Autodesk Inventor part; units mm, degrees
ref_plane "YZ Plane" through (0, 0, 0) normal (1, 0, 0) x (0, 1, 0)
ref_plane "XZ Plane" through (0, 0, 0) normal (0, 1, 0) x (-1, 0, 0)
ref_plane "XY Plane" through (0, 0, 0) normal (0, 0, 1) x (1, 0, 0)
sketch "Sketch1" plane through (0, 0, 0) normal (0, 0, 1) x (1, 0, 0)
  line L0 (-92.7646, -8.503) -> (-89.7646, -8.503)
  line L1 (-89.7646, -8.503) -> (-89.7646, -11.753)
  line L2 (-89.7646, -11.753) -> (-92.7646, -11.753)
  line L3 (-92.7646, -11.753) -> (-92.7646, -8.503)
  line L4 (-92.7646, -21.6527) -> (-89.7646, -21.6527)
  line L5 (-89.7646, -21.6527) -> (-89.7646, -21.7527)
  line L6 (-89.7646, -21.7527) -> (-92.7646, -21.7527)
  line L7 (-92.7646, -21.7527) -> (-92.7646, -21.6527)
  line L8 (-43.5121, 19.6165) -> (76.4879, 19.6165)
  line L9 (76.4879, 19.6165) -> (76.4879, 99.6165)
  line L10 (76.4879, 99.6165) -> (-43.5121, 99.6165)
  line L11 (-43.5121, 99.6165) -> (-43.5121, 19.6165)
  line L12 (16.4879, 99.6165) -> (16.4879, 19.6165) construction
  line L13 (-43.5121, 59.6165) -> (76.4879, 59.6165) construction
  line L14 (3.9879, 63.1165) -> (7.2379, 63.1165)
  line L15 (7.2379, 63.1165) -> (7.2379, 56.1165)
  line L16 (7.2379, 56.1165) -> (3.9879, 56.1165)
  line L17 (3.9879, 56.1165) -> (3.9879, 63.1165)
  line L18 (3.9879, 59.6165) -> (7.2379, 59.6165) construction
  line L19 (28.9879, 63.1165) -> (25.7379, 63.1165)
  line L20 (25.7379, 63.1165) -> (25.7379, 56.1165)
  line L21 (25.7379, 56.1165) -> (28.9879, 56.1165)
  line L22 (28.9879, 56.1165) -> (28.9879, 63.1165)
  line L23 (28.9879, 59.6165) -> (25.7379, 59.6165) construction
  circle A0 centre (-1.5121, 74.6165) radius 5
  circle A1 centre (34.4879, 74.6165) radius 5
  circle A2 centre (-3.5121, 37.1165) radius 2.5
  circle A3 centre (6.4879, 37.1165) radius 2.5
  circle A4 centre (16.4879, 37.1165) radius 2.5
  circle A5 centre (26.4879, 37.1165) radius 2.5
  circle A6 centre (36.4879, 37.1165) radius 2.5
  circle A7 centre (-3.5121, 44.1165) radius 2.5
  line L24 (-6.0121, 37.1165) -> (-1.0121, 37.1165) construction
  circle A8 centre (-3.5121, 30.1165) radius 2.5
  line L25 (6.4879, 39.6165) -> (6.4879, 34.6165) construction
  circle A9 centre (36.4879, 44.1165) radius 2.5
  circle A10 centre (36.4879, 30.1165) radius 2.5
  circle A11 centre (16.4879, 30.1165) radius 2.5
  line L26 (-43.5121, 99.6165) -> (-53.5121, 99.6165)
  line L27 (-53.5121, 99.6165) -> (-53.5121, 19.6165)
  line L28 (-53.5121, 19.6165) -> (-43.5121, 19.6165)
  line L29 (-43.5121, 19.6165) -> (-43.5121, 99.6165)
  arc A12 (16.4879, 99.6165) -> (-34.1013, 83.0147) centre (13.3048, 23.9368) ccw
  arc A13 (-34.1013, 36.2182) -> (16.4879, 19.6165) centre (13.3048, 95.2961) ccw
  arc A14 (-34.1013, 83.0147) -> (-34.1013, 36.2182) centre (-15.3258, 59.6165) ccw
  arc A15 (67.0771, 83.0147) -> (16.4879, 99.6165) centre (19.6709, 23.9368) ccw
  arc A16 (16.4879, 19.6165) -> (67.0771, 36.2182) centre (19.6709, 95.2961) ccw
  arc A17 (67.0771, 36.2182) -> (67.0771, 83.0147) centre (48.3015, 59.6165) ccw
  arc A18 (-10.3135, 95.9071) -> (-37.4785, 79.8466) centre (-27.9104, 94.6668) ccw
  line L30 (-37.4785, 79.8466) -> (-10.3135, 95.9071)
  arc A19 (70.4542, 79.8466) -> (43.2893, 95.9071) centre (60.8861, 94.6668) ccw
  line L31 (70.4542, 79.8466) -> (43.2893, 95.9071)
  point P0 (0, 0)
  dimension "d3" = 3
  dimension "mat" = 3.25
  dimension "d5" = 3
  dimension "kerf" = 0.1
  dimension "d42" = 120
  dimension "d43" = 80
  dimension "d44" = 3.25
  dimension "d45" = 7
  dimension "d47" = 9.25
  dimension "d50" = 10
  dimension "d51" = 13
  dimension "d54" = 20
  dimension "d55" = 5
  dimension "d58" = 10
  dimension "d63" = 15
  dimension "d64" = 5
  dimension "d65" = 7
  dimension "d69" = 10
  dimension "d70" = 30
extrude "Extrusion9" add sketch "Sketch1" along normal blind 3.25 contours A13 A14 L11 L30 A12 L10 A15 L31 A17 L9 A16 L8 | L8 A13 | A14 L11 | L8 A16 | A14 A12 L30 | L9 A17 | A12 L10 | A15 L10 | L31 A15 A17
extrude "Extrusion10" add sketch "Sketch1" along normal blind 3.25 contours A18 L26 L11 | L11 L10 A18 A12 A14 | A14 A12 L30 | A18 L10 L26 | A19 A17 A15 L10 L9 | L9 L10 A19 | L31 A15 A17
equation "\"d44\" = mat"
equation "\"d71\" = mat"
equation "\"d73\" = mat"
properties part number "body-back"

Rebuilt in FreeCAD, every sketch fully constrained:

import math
import FreeCAD as App
import Part
import Sketcher

V = App.Vector
Q = App.Units.Quantity


def add_polygon(sketch, points):
    """Adds a closed chain of lines whose ends are joined by coincident constraints."""
    first, n = sketch.GeometryCount, len(points)
    for a, b in zip(points, points[1:] + points[:1]):
        sketch.addGeometry(Part.LineSegment(App.Vector(*a, 0), App.Vector(*b, 0)), False)
    for i in range(n):
        sketch.addConstraint(Sketcher.Constraint("Coincident", first + i, 2, first + (i + 1) % n, 1))

doc = App.newDocument("Part")
body = doc.addObject("PartDesign::Body", "Body")

sketch1 = doc.addObject("Sketcher::SketchObject", "Sketch")
body.addObject(sketch1)
sketch1.AttachmentSupport = (doc.XY_Plane, [""])
sketch1.MapMode = "FlatFace"
sketch1.addGeometry(Part.ArcOfCircle(Part.Circle(V(13.3, 95.3, 0), V(0, 0, 1), 75.7), math.radians(-129), math.radians(-88)), False)
sketch1.addGeometry(Part.ArcOfCircle(Part.Circle(V(19.7, 95.3, 0), V(0, 0, 1), 75.7), math.radians(-92), math.radians(-51)), False)
sketch1.addGeometry(Part.ArcOfCircle(Part.Circle(V(48.3, 59.6, 0), V(0, 0, 1), 30), math.radians(-51), math.radians(51)), False)
sketch1.addGeometry(Part.ArcOfCircle(Part.Circle(V(19.7, 23.9, 0), V(0, 0, 1), 75.7), math.radians(51), math.radians(92)), False)
sketch1.addGeometry(Part.ArcOfCircle(Part.Circle(V(13.3, 23.9, 0), V(0, 0, 1), 75.7), math.radians(88), math.radians(129)), False)
sketch1.addGeometry(Part.ArcOfCircle(Part.Circle(V(-15.3, 59.6, 0), V(0, 0, 1), 30), math.radians(129), math.radians(231)), False)
sketch1.addGeometry(Part.Circle(V(-3.5, 30.1, 0), V(0, 0, 1), 2.5), False)
sketch1.addGeometry(Part.Circle(V(-3.5, 37.1, 0), V(0, 0, 1), 2.5), False)
sketch1.addGeometry(Part.Circle(V(-3.5, 44.1, 0), V(0, 0, 1), 2.5), False)
sketch1.addGeometry(Part.Circle(V(6.5, 37.1, 0), V(0, 0, 1), 2.5), False)
sketch1.addGeometry(Part.Circle(V(16.5, 30.1, 0), V(0, 0, 1), 2.5), False)
sketch1.addGeometry(Part.Circle(V(16.5, 37.1, 0), V(0, 0, 1), 2.5), False)
sketch1.addGeometry(Part.Circle(V(26.5, 37.1, 0), V(0, 0, 1), 2.5), False)
sketch1.addGeometry(Part.Circle(V(36.5, 30.1, 0), V(0, 0, 1), 2.5), False)
sketch1.addGeometry(Part.Circle(V(36.5, 37.1, 0), V(0, 0, 1), 2.5), False)
sketch1.addGeometry(Part.Circle(V(36.5, 44.1, 0), V(0, 0, 1), 2.5), False)
add_polygon(sketch1, [(4, 56.1), (4, 63.1), (7.2, 63.1), (7.2, 56.1)])
add_polygon(sketch1, [(25.7, 63.1), (29, 63.1), (29, 56.1), (25.7, 56.1)])
sketch1.addGeometry(Part.Circle(V(-1.5, 74.6, 0), V(0, 0, 1), 5), False)
sketch1.addGeometry(Part.Circle(V(34.5, 74.6, 0), V(0, 0, 1), 5), False)
sketch1.addConstraint(Sketcher.Constraint("Coincident", 0, 2, 1, 1))
sketch1.addConstraint(Sketcher.Constraint("Tangent", 1, 2, 2, 1))
sketch1.addConstraint(Sketcher.Constraint("Tangent", 2, 2, 3, 1))
sketch1.addConstraint(Sketcher.Constraint("Coincident", 3, 2, 4, 1))
sketch1.addConstraint(Sketcher.Constraint("Tangent", 4, 2, 5, 1))
sketch1.addConstraint(Sketcher.Constraint("Tangent", 5, 2, 0, 1))
sketch1.addConstraint(Sketcher.Constraint("Vertical", 16))
sketch1.addConstraint(Sketcher.Constraint("Horizontal", 17))
sketch1.addConstraint(Sketcher.Constraint("Vertical", 18))
sketch1.addConstraint(Sketcher.Constraint("Horizontal", 19))
sketch1.addConstraint(Sketcher.Constraint("Horizontal", 20))
sketch1.addConstraint(Sketcher.Constraint("Vertical", 21))
sketch1.addConstraint(Sketcher.Constraint("Horizontal", 22))
sketch1.addConstraint(Sketcher.Constraint("Vertical", 23))
sketch1.addConstraint(Sketcher.Constraint("Equal", 0, 1))
sketch1.addConstraint(Sketcher.Constraint("Equal", 1, 3))
sketch1.addConstraint(Sketcher.Constraint("Equal", 3, 4))
sketch1.addConstraint(Sketcher.Constraint("Equal", 2, 5))
sketch1.addConstraint(Sketcher.Constraint("Equal", 6, 7))
sketch1.addConstraint(Sketcher.Constraint("Equal", 7, 8))
sketch1.addConstraint(Sketcher.Constraint("Equal", 8, 9))
sketch1.addConstraint(Sketcher.Constraint("Equal", 9, 10))
sketch1.addConstraint(Sketcher.Constraint("Equal", 10, 11))
sketch1.addConstraint(Sketcher.Constraint("Equal", 11, 12))
sketch1.addConstraint(Sketcher.Constraint("Equal", 12, 13))
sketch1.addConstraint(Sketcher.Constraint("Equal", 13, 14))
sketch1.addConstraint(Sketcher.Constraint("Equal", 14, 15))
sketch1.addConstraint(Sketcher.Constraint("Equal", 24, 25))
sketch1.addConstraint(Sketcher.Constraint("Horizontal", 0, 3, 1, 3))
sketch1.addConstraint(Sketcher.Constraint("Horizontal", 3, 3, 4, 3))
sketch1.addConstraint(Sketcher.Constraint("Horizontal", 2, 3, 5, 3))
sketch1.addConstraint(Sketcher.Constraint("Horizontal", 7, 3, 9, 3))
sketch1.addConstraint(Sketcher.Constraint("Horizontal", 6, 3, 10, 3))
sketch1.addConstraint(Sketcher.Constraint("Horizontal", 9, 3, 11, 3))
sketch1.addConstraint(Sketcher.Constraint("Horizontal", 11, 3, 12, 3))
sketch1.addConstraint(Sketcher.Constraint("Horizontal", 10, 3, 13, 3))
sketch1.addConstraint(Sketcher.Constraint("Horizontal", 12, 3, 14, 3))
sketch1.addConstraint(Sketcher.Constraint("Horizontal", 8, 3, 15, 3))
sketch1.addConstraint(Sketcher.Constraint("Horizontal", 24, 3, 25, 3))
sketch1.addConstraint(Sketcher.Constraint("Horizontal", 17, 2, 20, 2))
sketch1.addConstraint(Sketcher.Constraint("Horizontal", 19, 2, 21, 2))
sketch1.addConstraint(Sketcher.Constraint("Vertical", 1, 3, 3, 3))
sketch1.addConstraint(Sketcher.Constraint("Vertical", 6, 3, 7, 3))
sketch1.addConstraint(Sketcher.Constraint("Vertical", 7, 3, 8, 3))
sketch1.addConstraint(Sketcher.Constraint("Vertical", 10, 3, 11, 3))
sketch1.addConstraint(Sketcher.Constraint("Vertical", 13, 3, 14, 3))
sketch1.addConstraint(Sketcher.Constraint("Vertical", 14, 3, 15, 3))
sketch1.addConstraint(Sketcher.Constraint("Vertical", 11, 3, 0, 2))
sketch1.addConstraint(Sketcher.Constraint("Equal", 19, 20))
sketch1.addConstraint(Sketcher.Constraint("Diameter", 6, Q("5 mm")))
sketch1.addConstraint(Sketcher.Constraint("Diameter", 24, Q("10 mm")))
sketch1.addConstraint(Sketcher.Constraint("Radius", 2, Q("30 mm")))
sketch1.addConstraint(Sketcher.Constraint("DistanceY", 16, 1, 16, 2, Q("7 mm")))
sketch1.addConstraint(Sketcher.Constraint("DistanceY", 6, 3, 7, 3, Q("7 mm")))
sketch1.addConstraint(Sketcher.Constraint("DistanceY", 7, 3, 8, 3, Q("7 mm")))
sketch1.addConstraint(Sketcher.Constraint("DistanceX", 7, 3, 9, 3, Q("10 mm")))
sketch1.addConstraint(Sketcher.Constraint("DistanceX", 9, 3, 10, 3, Q("10 mm")))
sketch1.addConstraint(Sketcher.Constraint("DistanceX", 11, 3, 12, 3, Q("10 mm")))
sketch1.addConstraint(Sketcher.Constraint("DistanceX", 12, 3, 13, 3, Q("10 mm")))
sketch1.addConstraint(Sketcher.Constraint("DistanceY", 5, 3, 24, 3, Q("15 mm")))
sketch1.addConstraint(Sketcher.Constraint("DistanceX", 17, 1, 17, 2, Q("3.25 mm")))
sketch1.addConstraint(Sketcher.Constraint("DistanceX", 8, 3, 24, 3, Q("2 mm")))
sketch1.addConstraint(Sketcher.Constraint("DistanceX", 25, 3, 15, 3, Q("2 mm")))
sketch1.addConstraint(Sketcher.Constraint("DistanceY", 25, 3, 3, 2, Q("25 mm")))
sketch1.addConstraint(Sketcher.Constraint("DistanceY", 8, 3, 16, 2, Q("19 mm")))
sketch1.addConstraint(Sketcher.Constraint("Radius", 0, Q("75.7465 mm")))
sketch1.addConstraint(Sketcher.Constraint("DistanceY", 6, 3, 5, 3, Q("29.5 mm")))
sketch1.addConstraint(Sketcher.Constraint("DistanceX", 24, 3, 16, 2, Q("5.5 mm")))
sketch1.addConstraint(Sketcher.Constraint("DistanceX", 20, 2, 25, 3, Q("5.5 mm")))
sketch1.addConstraint(Sketcher.Constraint("DistanceY", -1, 1, 0, 3, Q("95.296 mm")))
sketch1.addConstraint(Sketcher.Constraint("DistanceX", -1, 1, 1, 3, Q("19.671 mm")))
sketch1.addConstraint(Sketcher.Constraint("DistanceX", 6, 3, -1, 1, Q("3.512 mm")))
pad1 = doc.addObject("PartDesign::Pad", "Pad")
body.addObject(pad1)
pad1.Profile = sketch1
pad1.Length = 3.25

sketch2 = doc.addObject("Sketcher::SketchObject", "Sketch001")
body.addObject(sketch2)
sketch2.AttachmentSupport = (doc.XY_Plane, [""])
sketch2.MapMode = "FlatFace"
sketch2.addGeometry(Part.LineSegment(V(-37, 80, 0), V(-10, 96, 0)), False)
sketch2.addGeometry(Part.ArcOfCircle(Part.Circle(V(-28, 95, 0), V(0, 0, 1), 18), math.radians(4), math.radians(237)), False)
sketch2.addGeometry(Part.ArcOfCircle(Part.Circle(V(61, 95, 0), V(0, 0, 1), 18), math.radians(-57), math.radians(176)), False)
sketch2.addGeometry(Part.LineSegment(V(43, 96, 0), V(70, 80, 0)), False)
sketch2.addConstraint(Sketcher.Constraint("Coincident", 0, 1, 1, 2))
sketch2.addConstraint(Sketcher.Constraint("Coincident", 1, 1, 0, 2))
sketch2.addConstraint(Sketcher.Constraint("Coincident", 2, 1, 3, 2))
sketch2.addConstraint(Sketcher.Constraint("Coincident", 3, 1, 2, 2))
sketch2.addConstraint(Sketcher.Constraint("Equal", 1, 2))
sketch2.addConstraint(Sketcher.Constraint("Horizontal", 1, 3, 2, 3))
sketch2.addConstraint(Sketcher.Constraint("Horizontal", 0, 1, 2, 1))
sketch2.addConstraint(Sketcher.Constraint("Horizontal", 1, 1, 3, 1))
sketch2.addConstraint(Sketcher.Constraint("Radius", 1, Q("17.6406 mm")))
sketch2.addConstraint(Sketcher.Constraint("DistanceX", -1, 1, 2, 3, Q("60.886 mm")))
sketch2.addConstraint(Sketcher.Constraint("DistanceY", -1, 1, 1, 1, Q("95.907 mm")))
sketch2.addConstraint(Sketcher.Constraint("DistanceX", 0, 1, 1, 3, Q("9.568 mm")))
sketch2.addConstraint(Sketcher.Constraint("DistanceX", 1, 3, 1, 1, Q("17.597 mm")))
sketch2.addConstraint(Sketcher.Constraint("DistanceX", 1, 3, -1, 1, Q("27.9104 mm")))
pad2 = doc.addObject("PartDesign::Pad", "Pad001")
body.addObject(pad2)
pad2.Profile = sketch2
pad2.Length = 3.25

doc.recompute()
